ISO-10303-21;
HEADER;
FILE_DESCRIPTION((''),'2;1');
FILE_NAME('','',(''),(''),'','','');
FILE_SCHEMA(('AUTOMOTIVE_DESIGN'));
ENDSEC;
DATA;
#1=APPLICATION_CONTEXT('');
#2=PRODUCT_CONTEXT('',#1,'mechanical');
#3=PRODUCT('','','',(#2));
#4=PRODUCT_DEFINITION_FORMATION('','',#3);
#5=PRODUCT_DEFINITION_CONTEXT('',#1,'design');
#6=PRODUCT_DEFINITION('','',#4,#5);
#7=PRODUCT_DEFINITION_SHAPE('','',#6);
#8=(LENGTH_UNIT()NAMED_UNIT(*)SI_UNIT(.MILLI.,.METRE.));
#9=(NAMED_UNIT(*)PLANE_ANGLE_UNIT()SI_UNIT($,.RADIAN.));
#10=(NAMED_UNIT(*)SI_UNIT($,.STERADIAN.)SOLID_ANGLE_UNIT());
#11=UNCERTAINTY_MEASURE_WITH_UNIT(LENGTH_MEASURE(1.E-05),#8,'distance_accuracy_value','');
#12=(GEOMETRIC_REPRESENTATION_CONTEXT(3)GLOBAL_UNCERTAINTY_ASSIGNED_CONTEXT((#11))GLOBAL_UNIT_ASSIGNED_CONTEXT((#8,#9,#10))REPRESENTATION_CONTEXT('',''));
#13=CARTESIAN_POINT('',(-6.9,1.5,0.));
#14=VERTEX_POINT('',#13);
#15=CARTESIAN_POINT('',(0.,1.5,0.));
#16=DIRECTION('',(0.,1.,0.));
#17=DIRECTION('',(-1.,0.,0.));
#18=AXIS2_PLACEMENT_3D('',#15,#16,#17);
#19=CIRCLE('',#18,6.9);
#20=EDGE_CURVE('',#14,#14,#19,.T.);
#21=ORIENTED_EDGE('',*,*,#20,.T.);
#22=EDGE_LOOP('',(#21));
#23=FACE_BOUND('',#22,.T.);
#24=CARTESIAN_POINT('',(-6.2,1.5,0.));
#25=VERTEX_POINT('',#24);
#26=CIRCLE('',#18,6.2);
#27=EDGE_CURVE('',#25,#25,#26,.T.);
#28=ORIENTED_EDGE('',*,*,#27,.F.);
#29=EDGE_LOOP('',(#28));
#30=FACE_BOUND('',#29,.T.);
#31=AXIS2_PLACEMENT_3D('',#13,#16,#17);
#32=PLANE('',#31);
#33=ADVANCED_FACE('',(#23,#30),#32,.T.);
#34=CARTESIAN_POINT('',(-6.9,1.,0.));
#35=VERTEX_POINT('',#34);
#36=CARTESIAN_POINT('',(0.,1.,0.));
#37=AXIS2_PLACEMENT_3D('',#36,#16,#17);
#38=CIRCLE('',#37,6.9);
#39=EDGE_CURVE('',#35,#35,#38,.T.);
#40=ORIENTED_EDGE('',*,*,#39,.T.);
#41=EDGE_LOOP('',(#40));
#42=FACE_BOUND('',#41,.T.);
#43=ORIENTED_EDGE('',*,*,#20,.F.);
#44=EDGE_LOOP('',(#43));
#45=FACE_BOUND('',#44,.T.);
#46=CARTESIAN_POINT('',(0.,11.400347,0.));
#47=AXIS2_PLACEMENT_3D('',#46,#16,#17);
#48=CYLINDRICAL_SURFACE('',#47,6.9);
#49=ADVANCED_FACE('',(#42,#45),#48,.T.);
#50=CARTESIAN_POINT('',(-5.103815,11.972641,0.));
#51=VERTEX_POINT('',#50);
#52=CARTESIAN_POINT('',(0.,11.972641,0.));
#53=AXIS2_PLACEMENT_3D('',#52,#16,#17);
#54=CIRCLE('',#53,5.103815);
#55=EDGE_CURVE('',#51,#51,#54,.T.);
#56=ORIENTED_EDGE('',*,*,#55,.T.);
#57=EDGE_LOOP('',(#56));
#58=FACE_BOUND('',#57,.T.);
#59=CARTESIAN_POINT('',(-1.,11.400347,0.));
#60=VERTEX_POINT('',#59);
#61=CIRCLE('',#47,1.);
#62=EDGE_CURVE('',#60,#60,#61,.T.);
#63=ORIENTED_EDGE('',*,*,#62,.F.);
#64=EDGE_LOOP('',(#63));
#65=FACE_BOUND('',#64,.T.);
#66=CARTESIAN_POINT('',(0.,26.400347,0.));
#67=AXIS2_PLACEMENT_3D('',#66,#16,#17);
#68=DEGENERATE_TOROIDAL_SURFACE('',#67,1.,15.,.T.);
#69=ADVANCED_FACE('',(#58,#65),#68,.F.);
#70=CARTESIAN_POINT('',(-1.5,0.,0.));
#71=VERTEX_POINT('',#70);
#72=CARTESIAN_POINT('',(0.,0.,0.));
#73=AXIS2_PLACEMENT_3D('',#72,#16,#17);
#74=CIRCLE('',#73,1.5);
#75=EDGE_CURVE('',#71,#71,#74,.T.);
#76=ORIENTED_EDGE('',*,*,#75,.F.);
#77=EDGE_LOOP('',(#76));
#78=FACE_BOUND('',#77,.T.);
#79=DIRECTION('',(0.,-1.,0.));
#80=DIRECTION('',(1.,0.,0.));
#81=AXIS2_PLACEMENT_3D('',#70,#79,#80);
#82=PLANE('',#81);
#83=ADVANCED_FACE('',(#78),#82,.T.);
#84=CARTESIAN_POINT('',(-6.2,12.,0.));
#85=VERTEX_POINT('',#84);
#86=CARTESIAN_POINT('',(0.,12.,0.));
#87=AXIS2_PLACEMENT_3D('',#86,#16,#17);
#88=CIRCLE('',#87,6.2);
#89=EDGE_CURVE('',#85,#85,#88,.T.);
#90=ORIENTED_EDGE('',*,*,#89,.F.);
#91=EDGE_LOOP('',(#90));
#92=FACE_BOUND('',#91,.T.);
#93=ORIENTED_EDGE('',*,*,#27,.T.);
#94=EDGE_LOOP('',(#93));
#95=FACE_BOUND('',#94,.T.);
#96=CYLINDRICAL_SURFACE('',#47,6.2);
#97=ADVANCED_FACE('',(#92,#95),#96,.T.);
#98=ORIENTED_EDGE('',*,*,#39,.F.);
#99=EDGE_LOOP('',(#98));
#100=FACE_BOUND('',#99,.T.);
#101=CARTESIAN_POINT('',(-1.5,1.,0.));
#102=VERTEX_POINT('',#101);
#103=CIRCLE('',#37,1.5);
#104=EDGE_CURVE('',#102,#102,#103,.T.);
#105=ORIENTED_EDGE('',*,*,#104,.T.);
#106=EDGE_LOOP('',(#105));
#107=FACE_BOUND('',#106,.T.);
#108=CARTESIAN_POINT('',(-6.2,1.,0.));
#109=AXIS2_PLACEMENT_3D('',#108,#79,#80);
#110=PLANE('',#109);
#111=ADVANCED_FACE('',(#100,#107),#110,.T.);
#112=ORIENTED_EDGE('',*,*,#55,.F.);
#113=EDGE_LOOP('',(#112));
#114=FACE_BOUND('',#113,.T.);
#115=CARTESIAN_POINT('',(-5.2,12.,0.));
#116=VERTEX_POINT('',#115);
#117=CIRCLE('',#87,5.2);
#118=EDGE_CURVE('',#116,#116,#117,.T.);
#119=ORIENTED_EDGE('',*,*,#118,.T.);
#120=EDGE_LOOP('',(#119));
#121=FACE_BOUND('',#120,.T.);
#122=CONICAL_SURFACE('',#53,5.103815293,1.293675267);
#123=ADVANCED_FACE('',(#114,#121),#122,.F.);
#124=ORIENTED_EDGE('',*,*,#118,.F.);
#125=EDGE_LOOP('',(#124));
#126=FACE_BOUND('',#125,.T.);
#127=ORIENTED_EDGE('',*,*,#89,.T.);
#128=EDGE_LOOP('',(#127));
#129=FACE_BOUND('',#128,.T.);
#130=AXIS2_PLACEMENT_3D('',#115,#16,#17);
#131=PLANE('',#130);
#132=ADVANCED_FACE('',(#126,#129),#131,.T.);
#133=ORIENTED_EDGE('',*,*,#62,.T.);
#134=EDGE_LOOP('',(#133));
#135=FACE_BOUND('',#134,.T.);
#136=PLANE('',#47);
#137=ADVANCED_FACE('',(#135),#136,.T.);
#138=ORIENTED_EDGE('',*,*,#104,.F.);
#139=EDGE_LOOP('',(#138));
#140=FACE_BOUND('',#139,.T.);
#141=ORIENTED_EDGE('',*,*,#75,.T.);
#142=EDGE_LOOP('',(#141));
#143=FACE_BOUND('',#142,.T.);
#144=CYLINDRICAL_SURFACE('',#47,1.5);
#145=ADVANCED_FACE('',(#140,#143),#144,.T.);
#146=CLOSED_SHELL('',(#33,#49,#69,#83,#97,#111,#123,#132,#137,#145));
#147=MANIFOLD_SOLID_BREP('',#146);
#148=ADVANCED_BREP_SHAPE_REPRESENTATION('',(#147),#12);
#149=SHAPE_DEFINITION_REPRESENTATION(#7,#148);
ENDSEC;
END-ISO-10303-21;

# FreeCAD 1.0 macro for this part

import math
import FreeCAD as App
import Part
import Sketcher
from FreeCAD import Vector
Q = App.Units.Quantity

doc = App.newDocument("Part")
body = doc.addObject("PartDesign::Body", "Body")

# Sketch on XY plane
sketch1 = body.newObject("Sketcher::SketchObject", "Sketch")
sketch1.AttachmentSupport = (doc.getObject("XY_Plane"), [""])
sketch1.MapMode = "FlatFace"
sketch1.addGeometry(Part.LineSegment(Vector(-5.2, 12, 0), Vector(-6.2, 12, 0)), False)
sketch1.addGeometry(Part.LineSegment(Vector(-6.2, 12, 0), Vector(-6.2, 1.5, 0)), False)
sketch1.addGeometry(Part.LineSegment(Vector(-6.2, 1.5, 0), Vector(-6.9, 1.5, 0)), False)
sketch1.addGeometry(Part.LineSegment(Vector(-6.9, 1.5, 0), Vector(-6.9, 1, 0)), False)
sketch1.addGeometry(Part.LineSegment(Vector(-6.9, 1, 0), Vector(-1.5, 1, 0)), False)
sketch1.addGeometry(Part.LineSegment(Vector(-1.5, 1, 0), Vector(-1.5, 0, 0)), False)
sketch1.addGeometry(Part.LineSegment(Vector(-1.5, 0, 0), Vector(0, 0, 0)), False)
sketch1.addGeometry(Part.LineSegment(Vector(0, 0, 0), Vector(0, 11.4, 0)), False)
sketch1.addGeometry(Part.LineSegment(Vector(0, 11.4, 0), Vector(-1, 11.4, 0)), False)
sketch1.addGeometry(Part.ArcOfCircle(Part.Circle(Vector(-1, 26.4, 0), Vector(0, 0, 1), 15), math.radians(-105.88), math.radians(-90)), False)
sketch1.addGeometry(Part.LineSegment(Vector(-5.1, 11.97, 0), Vector(-5.2, 12, 0)), False)
sketch1.addConstraint(Sketcher.Constraint("Coincident", 0, 2, 1, 1))
sketch1.addConstraint(Sketcher.Constraint("Coincident", 1, 2, 2, 1))
sketch1.addConstraint(Sketcher.Constraint("Coincident", 2, 2, 3, 1))
sketch1.addConstraint(Sketcher.Constraint("Coincident", 3, 2, 4, 1))
sketch1.addConstraint(Sketcher.Constraint("Coincident", 4, 2, 5, 1))
sketch1.addConstraint(Sketcher.Constraint("Coincident", 5, 2, 6, 1))
sketch1.addConstraint(Sketcher.Constraint("Coincident", 6, 2, 7, 1))
sketch1.addConstraint(Sketcher.Constraint("Coincident", 7, 2, 8, 1))
sketch1.addConstraint(Sketcher.Constraint("Tangent", 8, 2, 9, 2))
sketch1.addConstraint(Sketcher.Constraint("Tangent", 9, 1, 10, 1))
sketch1.addConstraint(Sketcher.Constraint("Coincident", 10, 2, 0, 1))
sketch1.addConstraint(Sketcher.Constraint("Horizontal", 0))
sketch1.addConstraint(Sketcher.Constraint("Vertical", 1))
sketch1.addConstraint(Sketcher.Constraint("Horizontal", 2))
sketch1.addConstraint(Sketcher.Constraint("Vertical", 3))
sketch1.addConstraint(Sketcher.Constraint("Horizontal", 4))
sketch1.addConstraint(Sketcher.Constraint("Vertical", 5))
sketch1.addConstraint(Sketcher.Constraint("Horizontal", 6))
sketch1.addConstraint(Sketcher.Constraint("Vertical", 7))
sketch1.addConstraint(Sketcher.Constraint("Horizontal", 8))
sketch1.addConstraint(Sketcher.Constraint("Coincident", 6, 2, -1, 1))
sketch1.addConstraint(Sketcher.Constraint("Equal", 0, 8))
sketch1.addConstraint(Sketcher.Constraint("Equal", 8, 5))
sketch1.addConstraint(Sketcher.Constraint("Radius", 9, Q("15 mm")))
sketch1.addConstraint(Sketcher.Constraint("DistanceX", 0, 2, 0, 1, Q("1 mm")))
sketch1.addConstraint(Sketcher.Constraint("DistanceX", 2, 2, 2, 1, Q("0.7 mm")))
sketch1.addConstraint(Sketcher.Constraint("DistanceX", 4, 1, 4, 2, Q("5.4 mm")))
sketch1.addConstraint(Sketcher.Constraint("DistanceX", 6, 1, 6, 2, Q("1.5 mm")))
sketch1.addConstraint(Sketcher.Constraint("DistanceY", 1, 2, 1, 1, Q("10.5 mm")))
sketch1.addConstraint(Sketcher.Constraint("DistanceY", 3, 2, 3, 1, Q("0.5 mm")))
sketch1.addConstraint(Sketcher.Constraint("Distance", 10, Q("0.1 mm")))
revolution = body.newObject("PartDesign::Revolution", "Revolution")
revolution.Profile = sketch1
revolution.ReferenceAxis = (sketch1, ["V_Axis"])
revolution.Angle = 360

doc.recompute()
